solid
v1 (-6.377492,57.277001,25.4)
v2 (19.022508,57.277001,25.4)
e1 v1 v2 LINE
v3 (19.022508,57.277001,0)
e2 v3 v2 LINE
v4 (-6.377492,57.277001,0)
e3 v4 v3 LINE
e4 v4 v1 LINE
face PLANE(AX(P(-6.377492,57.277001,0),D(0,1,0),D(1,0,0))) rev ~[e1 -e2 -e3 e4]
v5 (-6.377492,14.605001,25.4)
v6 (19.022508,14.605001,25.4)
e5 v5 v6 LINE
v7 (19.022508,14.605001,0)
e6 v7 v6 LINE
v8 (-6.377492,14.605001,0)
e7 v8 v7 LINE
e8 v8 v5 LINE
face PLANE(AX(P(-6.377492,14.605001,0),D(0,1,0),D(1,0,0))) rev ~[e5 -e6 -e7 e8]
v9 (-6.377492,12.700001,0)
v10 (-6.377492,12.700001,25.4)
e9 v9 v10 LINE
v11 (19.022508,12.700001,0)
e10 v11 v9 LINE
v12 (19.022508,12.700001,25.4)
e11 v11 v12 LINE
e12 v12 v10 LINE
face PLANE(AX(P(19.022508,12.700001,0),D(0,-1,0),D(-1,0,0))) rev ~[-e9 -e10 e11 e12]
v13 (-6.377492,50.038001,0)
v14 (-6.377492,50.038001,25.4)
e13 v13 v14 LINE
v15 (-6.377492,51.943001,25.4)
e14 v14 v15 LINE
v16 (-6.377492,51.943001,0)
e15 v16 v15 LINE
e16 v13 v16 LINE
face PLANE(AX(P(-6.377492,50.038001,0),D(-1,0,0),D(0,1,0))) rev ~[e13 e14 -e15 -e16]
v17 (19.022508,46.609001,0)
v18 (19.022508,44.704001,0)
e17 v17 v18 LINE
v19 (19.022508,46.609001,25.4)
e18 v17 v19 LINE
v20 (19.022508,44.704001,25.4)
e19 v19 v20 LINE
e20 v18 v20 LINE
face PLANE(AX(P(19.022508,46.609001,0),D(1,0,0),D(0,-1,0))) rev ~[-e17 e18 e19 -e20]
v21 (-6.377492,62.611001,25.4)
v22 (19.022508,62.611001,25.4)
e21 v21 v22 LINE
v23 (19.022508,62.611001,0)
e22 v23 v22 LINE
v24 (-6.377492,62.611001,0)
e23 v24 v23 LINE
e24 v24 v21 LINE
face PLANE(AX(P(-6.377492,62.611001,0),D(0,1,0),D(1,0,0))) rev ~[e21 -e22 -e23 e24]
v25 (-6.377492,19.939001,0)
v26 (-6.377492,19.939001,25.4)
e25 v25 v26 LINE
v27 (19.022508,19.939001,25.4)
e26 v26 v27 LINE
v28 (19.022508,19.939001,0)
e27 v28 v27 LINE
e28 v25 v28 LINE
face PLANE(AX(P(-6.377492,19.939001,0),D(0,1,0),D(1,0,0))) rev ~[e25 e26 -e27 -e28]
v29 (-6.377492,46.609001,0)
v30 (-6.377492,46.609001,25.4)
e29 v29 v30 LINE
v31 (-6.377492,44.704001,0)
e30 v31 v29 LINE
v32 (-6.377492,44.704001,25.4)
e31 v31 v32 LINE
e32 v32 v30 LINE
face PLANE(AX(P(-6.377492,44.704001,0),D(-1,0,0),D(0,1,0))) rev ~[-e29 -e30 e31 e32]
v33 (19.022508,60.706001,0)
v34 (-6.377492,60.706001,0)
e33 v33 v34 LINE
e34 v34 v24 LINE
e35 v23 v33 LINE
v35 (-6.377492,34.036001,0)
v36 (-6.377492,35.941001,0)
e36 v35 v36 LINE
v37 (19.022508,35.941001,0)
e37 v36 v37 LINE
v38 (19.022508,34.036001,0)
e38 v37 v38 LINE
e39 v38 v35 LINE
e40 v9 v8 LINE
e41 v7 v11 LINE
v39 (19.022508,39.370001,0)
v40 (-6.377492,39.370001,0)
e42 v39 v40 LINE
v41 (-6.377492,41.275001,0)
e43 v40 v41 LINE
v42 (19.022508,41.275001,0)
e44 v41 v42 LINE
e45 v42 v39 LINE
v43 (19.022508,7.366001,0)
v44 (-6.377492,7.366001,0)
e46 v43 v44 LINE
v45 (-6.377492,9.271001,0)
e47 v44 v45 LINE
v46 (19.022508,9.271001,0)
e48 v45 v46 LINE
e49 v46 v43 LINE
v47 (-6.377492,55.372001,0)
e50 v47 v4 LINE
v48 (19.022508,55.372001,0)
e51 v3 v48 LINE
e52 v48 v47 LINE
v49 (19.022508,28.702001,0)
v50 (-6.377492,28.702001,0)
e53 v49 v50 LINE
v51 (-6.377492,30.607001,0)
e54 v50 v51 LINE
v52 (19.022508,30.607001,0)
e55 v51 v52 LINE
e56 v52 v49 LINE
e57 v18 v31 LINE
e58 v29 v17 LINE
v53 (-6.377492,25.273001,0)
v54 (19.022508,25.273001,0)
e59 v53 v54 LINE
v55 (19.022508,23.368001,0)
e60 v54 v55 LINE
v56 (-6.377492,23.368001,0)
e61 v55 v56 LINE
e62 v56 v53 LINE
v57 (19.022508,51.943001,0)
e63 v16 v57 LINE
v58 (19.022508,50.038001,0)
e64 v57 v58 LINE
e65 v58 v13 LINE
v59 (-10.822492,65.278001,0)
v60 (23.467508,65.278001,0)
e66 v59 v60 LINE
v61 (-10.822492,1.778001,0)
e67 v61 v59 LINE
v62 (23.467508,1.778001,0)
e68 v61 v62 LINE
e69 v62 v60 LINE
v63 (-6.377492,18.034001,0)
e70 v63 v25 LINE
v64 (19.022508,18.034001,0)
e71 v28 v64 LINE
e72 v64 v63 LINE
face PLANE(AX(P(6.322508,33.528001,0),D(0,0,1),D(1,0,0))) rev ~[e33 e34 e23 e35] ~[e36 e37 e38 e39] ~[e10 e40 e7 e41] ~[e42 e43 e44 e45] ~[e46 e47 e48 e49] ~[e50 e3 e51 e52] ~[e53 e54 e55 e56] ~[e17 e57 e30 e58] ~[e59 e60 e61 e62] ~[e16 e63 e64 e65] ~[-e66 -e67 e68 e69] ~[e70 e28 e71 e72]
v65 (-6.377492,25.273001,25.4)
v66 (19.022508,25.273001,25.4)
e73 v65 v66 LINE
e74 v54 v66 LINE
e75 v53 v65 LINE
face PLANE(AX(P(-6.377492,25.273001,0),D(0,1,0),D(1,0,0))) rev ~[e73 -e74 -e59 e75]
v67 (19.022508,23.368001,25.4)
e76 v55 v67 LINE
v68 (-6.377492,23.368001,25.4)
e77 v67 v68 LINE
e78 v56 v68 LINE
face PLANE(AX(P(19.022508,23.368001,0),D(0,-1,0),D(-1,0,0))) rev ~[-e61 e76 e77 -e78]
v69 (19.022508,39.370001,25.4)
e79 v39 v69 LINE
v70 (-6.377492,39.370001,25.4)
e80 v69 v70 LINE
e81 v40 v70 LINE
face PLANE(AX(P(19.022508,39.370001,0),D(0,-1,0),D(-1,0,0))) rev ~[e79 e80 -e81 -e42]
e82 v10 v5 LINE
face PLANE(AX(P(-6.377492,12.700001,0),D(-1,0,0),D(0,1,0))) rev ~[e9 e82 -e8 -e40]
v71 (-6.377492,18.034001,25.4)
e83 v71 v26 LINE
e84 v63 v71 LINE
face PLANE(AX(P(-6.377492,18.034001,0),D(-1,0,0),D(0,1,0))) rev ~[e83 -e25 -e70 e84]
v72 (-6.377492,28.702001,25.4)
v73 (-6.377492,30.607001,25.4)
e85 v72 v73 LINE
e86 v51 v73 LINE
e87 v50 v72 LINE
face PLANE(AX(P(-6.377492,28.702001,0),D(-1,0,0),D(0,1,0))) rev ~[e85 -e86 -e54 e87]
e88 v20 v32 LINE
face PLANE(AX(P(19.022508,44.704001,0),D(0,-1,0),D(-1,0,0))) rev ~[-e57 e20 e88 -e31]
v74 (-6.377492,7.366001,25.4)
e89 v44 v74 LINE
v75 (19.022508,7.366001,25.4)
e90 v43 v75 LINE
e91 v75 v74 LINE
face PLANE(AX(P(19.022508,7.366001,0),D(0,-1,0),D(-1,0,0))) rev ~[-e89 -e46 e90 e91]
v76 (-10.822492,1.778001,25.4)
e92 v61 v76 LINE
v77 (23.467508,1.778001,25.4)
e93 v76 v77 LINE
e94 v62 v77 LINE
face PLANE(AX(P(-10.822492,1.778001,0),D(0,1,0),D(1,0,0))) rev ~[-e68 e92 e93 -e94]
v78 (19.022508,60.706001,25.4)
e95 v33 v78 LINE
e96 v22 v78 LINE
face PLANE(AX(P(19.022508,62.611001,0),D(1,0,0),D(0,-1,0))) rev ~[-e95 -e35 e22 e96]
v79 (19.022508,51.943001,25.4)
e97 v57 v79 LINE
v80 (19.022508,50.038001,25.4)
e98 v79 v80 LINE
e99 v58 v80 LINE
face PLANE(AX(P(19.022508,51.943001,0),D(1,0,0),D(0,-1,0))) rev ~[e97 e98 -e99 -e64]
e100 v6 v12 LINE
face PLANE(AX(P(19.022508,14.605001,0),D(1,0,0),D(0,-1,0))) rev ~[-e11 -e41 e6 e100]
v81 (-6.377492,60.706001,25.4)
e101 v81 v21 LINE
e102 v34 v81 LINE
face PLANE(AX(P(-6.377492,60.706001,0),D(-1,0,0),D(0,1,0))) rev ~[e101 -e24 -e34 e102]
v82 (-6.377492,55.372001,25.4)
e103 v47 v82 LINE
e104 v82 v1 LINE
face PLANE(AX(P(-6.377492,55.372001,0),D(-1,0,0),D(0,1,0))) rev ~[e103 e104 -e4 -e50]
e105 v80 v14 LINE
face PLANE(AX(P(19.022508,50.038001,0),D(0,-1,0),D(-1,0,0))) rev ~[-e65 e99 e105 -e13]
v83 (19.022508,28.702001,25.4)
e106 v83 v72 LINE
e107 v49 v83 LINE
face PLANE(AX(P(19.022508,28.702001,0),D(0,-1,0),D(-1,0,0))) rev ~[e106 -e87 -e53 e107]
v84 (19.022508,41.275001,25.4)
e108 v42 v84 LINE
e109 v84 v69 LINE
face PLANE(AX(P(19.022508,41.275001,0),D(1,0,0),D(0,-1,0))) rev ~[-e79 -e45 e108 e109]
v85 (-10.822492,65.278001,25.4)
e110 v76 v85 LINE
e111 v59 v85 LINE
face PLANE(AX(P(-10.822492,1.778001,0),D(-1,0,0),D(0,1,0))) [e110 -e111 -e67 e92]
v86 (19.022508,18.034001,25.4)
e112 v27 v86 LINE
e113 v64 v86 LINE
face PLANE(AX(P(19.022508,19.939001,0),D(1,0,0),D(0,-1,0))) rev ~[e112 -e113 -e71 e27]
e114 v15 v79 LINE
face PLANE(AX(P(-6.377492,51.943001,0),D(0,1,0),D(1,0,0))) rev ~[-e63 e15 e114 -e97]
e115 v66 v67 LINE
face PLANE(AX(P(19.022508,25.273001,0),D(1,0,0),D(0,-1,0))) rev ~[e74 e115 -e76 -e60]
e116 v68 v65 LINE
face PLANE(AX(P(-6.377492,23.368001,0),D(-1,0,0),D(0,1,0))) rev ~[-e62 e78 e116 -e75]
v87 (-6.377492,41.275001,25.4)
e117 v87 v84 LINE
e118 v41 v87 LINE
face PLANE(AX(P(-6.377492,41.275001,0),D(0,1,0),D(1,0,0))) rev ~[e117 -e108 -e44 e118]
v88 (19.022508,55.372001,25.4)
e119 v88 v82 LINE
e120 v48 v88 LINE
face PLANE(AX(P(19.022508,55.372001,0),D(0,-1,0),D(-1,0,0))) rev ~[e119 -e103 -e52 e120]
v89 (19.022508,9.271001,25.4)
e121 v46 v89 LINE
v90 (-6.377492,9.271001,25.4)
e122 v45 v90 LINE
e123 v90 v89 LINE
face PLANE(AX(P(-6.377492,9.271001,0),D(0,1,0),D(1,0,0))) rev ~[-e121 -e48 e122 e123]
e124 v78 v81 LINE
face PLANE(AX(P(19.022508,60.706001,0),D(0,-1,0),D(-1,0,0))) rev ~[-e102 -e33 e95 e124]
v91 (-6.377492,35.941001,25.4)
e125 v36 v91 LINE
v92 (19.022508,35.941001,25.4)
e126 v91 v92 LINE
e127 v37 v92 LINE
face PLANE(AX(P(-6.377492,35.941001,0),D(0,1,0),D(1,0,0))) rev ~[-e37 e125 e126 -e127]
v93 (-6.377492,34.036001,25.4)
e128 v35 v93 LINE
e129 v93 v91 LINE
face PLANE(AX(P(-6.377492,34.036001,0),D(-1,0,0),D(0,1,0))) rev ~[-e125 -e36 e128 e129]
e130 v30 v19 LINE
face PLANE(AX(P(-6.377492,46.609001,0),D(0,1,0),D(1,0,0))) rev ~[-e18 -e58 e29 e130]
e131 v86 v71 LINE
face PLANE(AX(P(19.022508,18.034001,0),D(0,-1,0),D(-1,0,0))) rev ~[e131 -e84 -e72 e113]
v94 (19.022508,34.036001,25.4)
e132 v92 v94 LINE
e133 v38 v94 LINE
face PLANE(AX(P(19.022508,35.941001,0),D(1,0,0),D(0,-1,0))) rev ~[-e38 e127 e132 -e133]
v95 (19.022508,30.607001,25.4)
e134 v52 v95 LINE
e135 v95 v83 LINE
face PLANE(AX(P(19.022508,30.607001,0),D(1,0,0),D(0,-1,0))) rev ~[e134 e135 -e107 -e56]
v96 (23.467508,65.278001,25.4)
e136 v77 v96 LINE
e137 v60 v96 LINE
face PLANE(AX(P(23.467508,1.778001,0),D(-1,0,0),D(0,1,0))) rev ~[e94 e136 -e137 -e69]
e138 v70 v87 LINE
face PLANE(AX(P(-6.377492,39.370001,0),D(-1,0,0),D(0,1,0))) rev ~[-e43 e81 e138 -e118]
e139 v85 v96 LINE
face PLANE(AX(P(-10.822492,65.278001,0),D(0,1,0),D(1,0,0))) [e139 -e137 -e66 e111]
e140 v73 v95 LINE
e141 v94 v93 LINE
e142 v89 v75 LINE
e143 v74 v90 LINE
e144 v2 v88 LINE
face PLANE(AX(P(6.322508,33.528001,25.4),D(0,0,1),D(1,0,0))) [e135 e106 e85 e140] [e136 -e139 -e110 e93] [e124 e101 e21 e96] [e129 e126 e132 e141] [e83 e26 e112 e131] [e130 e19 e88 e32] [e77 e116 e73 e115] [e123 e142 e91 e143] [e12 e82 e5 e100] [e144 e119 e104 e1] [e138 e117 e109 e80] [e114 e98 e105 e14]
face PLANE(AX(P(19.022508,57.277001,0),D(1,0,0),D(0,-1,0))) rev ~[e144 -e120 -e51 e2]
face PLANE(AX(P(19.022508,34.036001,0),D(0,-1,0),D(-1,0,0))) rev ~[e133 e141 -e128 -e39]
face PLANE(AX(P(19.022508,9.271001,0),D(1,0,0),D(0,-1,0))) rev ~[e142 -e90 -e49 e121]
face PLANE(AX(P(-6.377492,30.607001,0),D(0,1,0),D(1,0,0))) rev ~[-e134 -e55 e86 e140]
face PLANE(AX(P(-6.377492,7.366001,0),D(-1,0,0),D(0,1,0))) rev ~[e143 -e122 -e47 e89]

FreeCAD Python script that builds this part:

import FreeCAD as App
import Part
import Sketcher
Q = App.Units.Quantity


def add_polygon(sketch, points):
    """Adds a closed chain of lines whose ends are joined by coincident constraints."""
    first, n = sketch.GeometryCount, len(points)
    for a, b in zip(points, points[1:] + points[:1]):
        sketch.addGeometry(Part.LineSegment(App.Vector(*a, 0), App.Vector(*b, 0)), False)
    for i in range(n):
        sketch.addConstraint(Sketcher.Constraint("Coincident", first + i, 2, first + (i + 1) % n, 1))

doc = App.newDocument("Part")
body = doc.addObject("PartDesign::Body", "Body")

sketch1 = body.newObject("Sketcher::SketchObject", "Sketch")
sketch1.AttachmentSupport = (doc.getObject("XY_Plane"), [""])
sketch1.MapMode = "FlatFace"
add_polygon(sketch1, [(-10.822492, 65.278001), (-10.822492, 1.778001), (23.467508, 1.778001), (23.467508, 65.278001)])
add_polygon(sketch1, [(19.022508, 9.271001), (19.022508, 7.366001), (-6.377492, 7.366001), (-6.377492, 9.271001)])
add_polygon(sketch1, [(19.022508, 14.605001), (19.022508, 12.700001), (-6.377492, 12.700001), (-6.377492, 14.605001)])
add_polygon(sketch1, [(19.022508, 19.939001), (19.022508, 18.034001), (-6.377492, 18.034001), (-6.377492, 19.939001)])
add_polygon(sketch1, [(19.022508, 25.273001), (19.022508, 23.368001), (-6.377492, 23.368001), (-6.377492, 25.273001)])
add_polygon(sketch1, [(19.022508, 30.607001), (19.022508, 28.702001), (-6.377492, 28.702001), (-6.377492, 30.607001)])
add_polygon(sketch1, [(19.022508, 35.941001), (19.022508, 34.036001), (-6.377492, 34.036001), (-6.377492, 35.941001)])
add_polygon(sketch1, [(19.022508, 41.275001), (19.022508, 39.370001), (-6.377492, 39.370001), (-6.377492, 41.275001)])
add_polygon(sketch1, [(19.022508, 46.609001), (19.022508, 44.704001), (-6.377492, 44.704001), (-6.377492, 46.609001)])
add_polygon(sketch1, [(19.022508, 51.943001), (19.022508, 50.038001), (-6.377492, 50.038001), (-6.377492, 51.943001)])
add_polygon(sketch1, [(19.022508, 57.277001), (19.022508, 55.372001), (-6.377492, 55.372001), (-6.377492, 57.277001)])
add_polygon(sketch1, [(19.022508, 62.611001), (19.022508, 60.706001), (-6.377492, 60.706001), (-6.377492, 62.611001)])
sketch1.addConstraint([
    Sketcher.Constraint("Vertical", 0),
    Sketcher.Constraint("Horizontal", 1),
    Sketcher.Constraint("Vertical", 2),
    Sketcher.Constraint("Horizontal", 3),
    Sketcher.Constraint("Vertical", 4),
    Sketcher.Constraint("Horizontal", 5),
    Sketcher.Constraint("Vertical", 6),
    Sketcher.Constraint("Horizontal", 7),
    Sketcher.Constraint("Vertical", 8),
    Sketcher.Constraint("Horizontal", 9),
    Sketcher.Constraint("Vertical", 10),
    Sketcher.Constraint("Horizontal", 11),
    Sketcher.Constraint("Vertical", 12),
    Sketcher.Constraint("Horizontal", 13),
    Sketcher.Constraint("Vertical", 14),
    Sketcher.Constraint("Horizontal", 15),
    Sketcher.Constraint("Vertical", 16),
    Sketcher.Constraint("Horizontal", 17),
    Sketcher.Constraint("Vertical", 18),
    Sketcher.Constraint("Horizontal", 19),
    Sketcher.Constraint("Vertical", 20),
    Sketcher.Constraint("Horizontal", 21),
    Sketcher.Constraint("Vertical", 22),
    Sketcher.Constraint("Horizontal", 23),
    Sketcher.Constraint("Vertical", 24),
    Sketcher.Constraint("Horizontal", 25),
    Sketcher.Constraint("Vertical", 26),
    Sketcher.Constraint("Horizontal", 27),
    Sketcher.Constraint("Vertical", 28),
    Sketcher.Constraint("Horizontal", 29),
    Sketcher.Constraint("Vertical", 30),
    Sketcher.Constraint("Horizontal", 31),
    Sketcher.Constraint("Vertical", 32),
    Sketcher.Constraint("Horizontal", 33),
    Sketcher.Constraint("Vertical", 34),
    Sketcher.Constraint("Horizontal", 35),
    Sketcher.Constraint("Vertical", 36),
    Sketcher.Constraint("Horizontal", 37),
    Sketcher.Constraint("Vertical", 38),
    Sketcher.Constraint("Horizontal", 39),
    Sketcher.Constraint("Vertical", 40),
    Sketcher.Constraint("Horizontal", 41),
    Sketcher.Constraint("Vertical", 42),
    Sketcher.Constraint("Horizontal", 43),
    Sketcher.Constraint("Vertical", 44),
    Sketcher.Constraint("Horizontal", 45),
    Sketcher.Constraint("Vertical", 46),
    Sketcher.Constraint("Horizontal", 47),
    Sketcher.Constraint("Vertical", 7, 2, 8, 2),
    Sketcher.Constraint("Vertical", 6, 2, 9, 2),
    Sketcher.Constraint("Vertical", 11, 2, 12, 2),
    Sketcher.Constraint("Vertical", 10, 2, 13, 2),
    Sketcher.Constraint("Vertical", 15, 2, 16, 2),
    Sketcher.Constraint("Vertical", 14, 2, 17, 2),
    Sketcher.Constraint("Vertical", 19, 2, 20, 2),
    Sketcher.Constraint("Vertical", 18, 2, 21, 2),
    Sketcher.Constraint("Vertical", 23, 2, 24, 2),
    Sketcher.Constraint("Vertical", 22, 2, 25, 2),
    Sketcher.Constraint("Vertical", 27, 2, 28, 2),
    Sketcher.Constraint("Vertical", 26, 2, 29, 2),
    Sketcher.Constraint("Vertical", 31, 2, 32, 2),
    Sketcher.Constraint("Vertical", 30, 2, 33, 2),
    Sketcher.Constraint("Vertical", 35, 2, 36, 2),
    Sketcher.Constraint("Vertical", 34, 2, 37, 2),
    Sketcher.Constraint("Vertical", 39, 2, 40, 2),
    Sketcher.Constraint("Vertical", 38, 2, 41, 2),
    Sketcher.Constraint("Vertical", 43, 2, 44, 2),
    Sketcher.Constraint("Vertical", 42, 2, 45, 2),
    Sketcher.Constraint("Equal", 6, 8),
    Sketcher.Constraint("Equal", 10, 12),
    Sketcher.Constraint("Equal", 14, 16),
    Sketcher.Constraint("Equal", 18, 20),
    Sketcher.Constraint("Equal", 22, 24),
    Sketcher.Constraint("Equal", 26, 28),
    Sketcher.Constraint("Equal", 30, 32),
    Sketcher.Constraint("Equal", 34, 36),
    Sketcher.Constraint("Equal", 38, 40),
    Sketcher.Constraint("Equal", 42, 44),
    Sketcher.Constraint("DistanceX", 5, 2, 5, 1, Q("1 in")),
    Sketcher.Constraint("DistanceY", 0, 2, 0, 1, Q("2.5 in")),
    Sketcher.Constraint("DistanceX", 1, 1, 1, 2, Q("1.35 in")),
    Sketcher.Constraint("DistanceY", -1, 1, 8, 2, Q("0.5 in")),
    Sketcher.Constraint("DistanceY", 4, 2, 4, 1, Q("0.075 in")),
    Sketcher.Constraint("DistanceY", -1, 1, 0, 2, Q("0.07 in")),
    Sketcher.Constraint("DistanceY", -1, 1, 4, 2, Q("0.29 in")),
    Sketcher.Constraint("DistanceY", -1, 1, 12, 2, Q("0.71 in")),
    Sketcher.Constraint("DistanceY", -1, 1, 16, 2, Q("0.92 in")),
    Sketcher.Constraint("DistanceY", -1, 1, 20, 2, Q("1.13 in")),
    Sketcher.Constraint("DistanceY", -1, 1, 24, 2, Q("1.34 in")),
    Sketcher.Constraint("DistanceY", -1, 1, 28, 2, Q("1.55 in")),
    Sketcher.Constraint("DistanceY", -1, 1, 32, 2, Q("1.76 in")),
    Sketcher.Constraint("DistanceY", -1, 1, 36, 2, Q("1.97 in")),
    Sketcher.Constraint("DistanceY", -1, 1, 40, 2, Q("2.18 in")),
    Sketcher.Constraint("DistanceY", -1, 1, 44, 2, Q("2.39 in")),
    Sketcher.Constraint("DistanceX", 4, 2, 1, 2, Q("0.175 in")),
    Sketcher.Constraint("DistanceX", 0, 2, -1, 1, 10.822492),
])
pad1 = body.newObject("PartDesign::Pad", "Pad")
pad1.Profile = sketch1
pad1.Length = Q("1 in")

doc.recompute()
